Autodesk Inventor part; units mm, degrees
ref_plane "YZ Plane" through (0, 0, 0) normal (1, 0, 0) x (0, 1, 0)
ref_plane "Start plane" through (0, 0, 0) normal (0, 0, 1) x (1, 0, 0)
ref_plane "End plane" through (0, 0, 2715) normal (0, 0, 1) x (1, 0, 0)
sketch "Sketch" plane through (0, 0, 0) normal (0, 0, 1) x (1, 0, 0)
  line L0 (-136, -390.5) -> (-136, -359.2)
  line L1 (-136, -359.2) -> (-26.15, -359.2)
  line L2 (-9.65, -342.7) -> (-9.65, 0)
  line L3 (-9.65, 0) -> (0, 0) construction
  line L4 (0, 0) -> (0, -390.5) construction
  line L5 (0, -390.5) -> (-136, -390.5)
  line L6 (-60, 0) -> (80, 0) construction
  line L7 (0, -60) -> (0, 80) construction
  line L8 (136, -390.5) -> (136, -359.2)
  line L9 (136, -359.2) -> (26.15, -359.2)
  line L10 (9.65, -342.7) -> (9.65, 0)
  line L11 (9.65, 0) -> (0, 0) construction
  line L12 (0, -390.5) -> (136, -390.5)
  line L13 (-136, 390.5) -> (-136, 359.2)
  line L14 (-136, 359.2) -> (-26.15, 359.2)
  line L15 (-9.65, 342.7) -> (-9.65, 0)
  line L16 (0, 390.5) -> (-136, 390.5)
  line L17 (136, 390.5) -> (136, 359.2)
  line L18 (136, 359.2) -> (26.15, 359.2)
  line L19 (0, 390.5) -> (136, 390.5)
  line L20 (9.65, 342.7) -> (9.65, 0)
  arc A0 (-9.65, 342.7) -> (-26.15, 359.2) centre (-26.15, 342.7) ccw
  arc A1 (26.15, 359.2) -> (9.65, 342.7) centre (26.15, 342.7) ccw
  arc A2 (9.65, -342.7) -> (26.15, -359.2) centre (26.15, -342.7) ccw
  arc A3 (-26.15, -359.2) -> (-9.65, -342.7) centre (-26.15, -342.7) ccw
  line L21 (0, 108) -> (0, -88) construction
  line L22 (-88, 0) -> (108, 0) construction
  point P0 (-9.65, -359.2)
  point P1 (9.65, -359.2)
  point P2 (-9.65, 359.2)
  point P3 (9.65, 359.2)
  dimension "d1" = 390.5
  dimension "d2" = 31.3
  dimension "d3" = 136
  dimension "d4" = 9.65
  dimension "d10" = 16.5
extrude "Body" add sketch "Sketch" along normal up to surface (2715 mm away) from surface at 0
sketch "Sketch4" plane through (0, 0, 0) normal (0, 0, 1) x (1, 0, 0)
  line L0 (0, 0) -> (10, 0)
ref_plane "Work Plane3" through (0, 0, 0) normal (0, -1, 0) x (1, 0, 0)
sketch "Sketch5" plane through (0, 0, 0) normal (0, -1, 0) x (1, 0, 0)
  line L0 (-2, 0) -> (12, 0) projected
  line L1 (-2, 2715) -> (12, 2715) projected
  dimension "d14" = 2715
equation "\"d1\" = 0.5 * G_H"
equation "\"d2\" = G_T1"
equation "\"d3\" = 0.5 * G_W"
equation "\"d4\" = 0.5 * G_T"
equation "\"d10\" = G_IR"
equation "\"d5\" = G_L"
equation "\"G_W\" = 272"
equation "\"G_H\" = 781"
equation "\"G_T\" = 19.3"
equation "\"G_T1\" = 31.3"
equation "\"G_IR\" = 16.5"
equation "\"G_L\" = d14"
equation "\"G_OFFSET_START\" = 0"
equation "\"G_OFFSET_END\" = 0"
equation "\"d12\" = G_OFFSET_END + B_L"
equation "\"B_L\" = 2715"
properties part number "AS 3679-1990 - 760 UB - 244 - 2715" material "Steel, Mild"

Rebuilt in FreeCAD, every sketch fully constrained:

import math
import FreeCAD as App
import Part
import Sketcher
from FreeCAD import Vector
Q = App.Units.Quantity

doc = App.newDocument("Part")
params = doc.addObject("Spreadsheet::Sheet", "Params")
for row, (alias, value) in enumerate([
    ("sketch1_radius", "16.5 mm"),
    ("sketch1_height", "31.3 mm"),
    ("pad1_length", "2715 mm"),
], start=1):
    params.set(f"A{row}", alias)
    params.set(f"B{row}", "=" + value)
    params.setAlias(f"B{row}", alias)

body = doc.addObject("PartDesign::Body", "Body")

sketch1 = body.newObject("Sketcher::SketchObject", "Sketch")
sketch1.AttachmentSupport = (doc.getObject("XY_Plane"), [""])
sketch1.MapMode = "FlatFace"
sketch1.addGeometry([
    Part.LineSegment(Vector(-136, -359, 0), Vector(-136, -390, 0)),
    Part.LineSegment(Vector(-136, -390, 0), Vector(136, -390, 0)),
    Part.LineSegment(Vector(136, -390, 0), Vector(136, -359, 0)),
    Part.LineSegment(Vector(136, -359, 0), Vector(26, -359, 0)),
    Part.ArcOfCircle(Part.Circle(Vector(26, -343, 0), Vector(0, 0, 1), 16), math.radians(180), math.radians(270)),
    Part.LineSegment(Vector(10, -343, 0), Vector(10, 343, 0)),
    Part.ArcOfCircle(Part.Circle(Vector(26, 343, 0), Vector(0, 0, 1), 16), math.radians(90), math.radians(180)),
    Part.LineSegment(Vector(26, 359, 0), Vector(136, 359, 0)),
    Part.LineSegment(Vector(136, 359, 0), Vector(136, 390, 0)),
    Part.LineSegment(Vector(136, 390, 0), Vector(-136, 390, 0)),
    Part.LineSegment(Vector(-136, 390, 0), Vector(-136, 359, 0)),
    Part.LineSegment(Vector(-136, 359, 0), Vector(-26, 359, 0)),
    Part.ArcOfCircle(Part.Circle(Vector(-26, 343, 0), Vector(0, 0, 1), 16), math.radians(0), math.radians(90)),
    Part.LineSegment(Vector(-10, 343, 0), Vector(-10, -343, 0)),
    Part.ArcOfCircle(Part.Circle(Vector(-26, -343, 0), Vector(0, 0, 1), 16), math.radians(-90), math.radians(0)),
    Part.LineSegment(Vector(-26, -359, 0), Vector(-136, -359, 0)),
], False)
sketch1.addConstraint([
    Sketcher.Constraint("Coincident", 0, 2, 1, 1),
    Sketcher.Constraint("Coincident", 1, 2, 2, 1),
    Sketcher.Constraint("Coincident", 2, 2, 3, 1),
    Sketcher.Constraint("Tangent", 3, 2, 4, 2),
    Sketcher.Constraint("Tangent", 4, 1, 5, 1),
    Sketcher.Constraint("Tangent", 5, 2, 6, 2),
    Sketcher.Constraint("Tangent", 6, 1, 7, 1),
    Sketcher.Constraint("Coincident", 7, 2, 8, 1),
    Sketcher.Constraint("Coincident", 8, 2, 9, 1),
    Sketcher.Constraint("Coincident", 9, 2, 10, 1),
    Sketcher.Constraint("Coincident", 10, 2, 11, 1),
    Sketcher.Constraint("Tangent", 11, 2, 12, 2),
    Sketcher.Constraint("Tangent", 12, 1, 13, 1),
    Sketcher.Constraint("Tangent", 13, 2, 14, 2),
    Sketcher.Constraint("Tangent", 14, 1, 15, 1),
    Sketcher.Constraint("Coincident", 15, 2, 0, 1),
    Sketcher.Constraint("Vertical", 0),
    Sketcher.Constraint("Horizontal", 1),
    Sketcher.Constraint("Vertical", 2),
    Sketcher.Constraint("Horizontal", 3),
    Sketcher.Constraint("Vertical", 5),
    Sketcher.Constraint("Horizontal", 7),
    Sketcher.Constraint("Vertical", 8),
    Sketcher.Constraint("Horizontal", 9),
    Sketcher.Constraint("Vertical", 10),
    Sketcher.Constraint("Horizontal", 11),
    Sketcher.Constraint("Vertical", 13),
    Sketcher.Constraint("Horizontal", 15),
    Sketcher.Constraint("Equal", 4, 6),
    Sketcher.Constraint("Equal", 6, 12),
    Sketcher.Constraint("Equal", 12, 14),
    Sketcher.Constraint("Symmetric", 4, 3, 12, 3, -1, 1),
    Sketcher.Constraint("Symmetric", 0, 2, 8, 2, -1, 1),
    Sketcher.Constraint("Symmetric", 7, 2, 10, 2, -2),
    Sketcher.Constraint("Symmetric", 2, 2, 15, 2, -2),
    Sketcher.Constraint("Radius", 4, Q("16.5 mm")),
    Sketcher.Constraint("DistanceY", 0, 2, 0, 1, Q("31.3 mm")),
    Sketcher.Constraint("DistanceX", 0, 2, -1, 1, Q("136 mm")),
    Sketcher.Constraint("DistanceY", 0, 2, -1, 1, Q("390.5 mm")),
    Sketcher.Constraint("DistanceX", -1, 1, 4, 1, Q("9.65 mm")),
])
sketch1.setExpression("Constraints[35]", "Params.sketch1_radius")
sketch1.setExpression("Constraints[36]", "Params.sketch1_height")
pad1 = body.newObject("PartDesign::Pad", "Pad")
pad1.Profile = sketch1
pad1.setExpression("Length", "Params.pad1_length")

doc.recompute()
